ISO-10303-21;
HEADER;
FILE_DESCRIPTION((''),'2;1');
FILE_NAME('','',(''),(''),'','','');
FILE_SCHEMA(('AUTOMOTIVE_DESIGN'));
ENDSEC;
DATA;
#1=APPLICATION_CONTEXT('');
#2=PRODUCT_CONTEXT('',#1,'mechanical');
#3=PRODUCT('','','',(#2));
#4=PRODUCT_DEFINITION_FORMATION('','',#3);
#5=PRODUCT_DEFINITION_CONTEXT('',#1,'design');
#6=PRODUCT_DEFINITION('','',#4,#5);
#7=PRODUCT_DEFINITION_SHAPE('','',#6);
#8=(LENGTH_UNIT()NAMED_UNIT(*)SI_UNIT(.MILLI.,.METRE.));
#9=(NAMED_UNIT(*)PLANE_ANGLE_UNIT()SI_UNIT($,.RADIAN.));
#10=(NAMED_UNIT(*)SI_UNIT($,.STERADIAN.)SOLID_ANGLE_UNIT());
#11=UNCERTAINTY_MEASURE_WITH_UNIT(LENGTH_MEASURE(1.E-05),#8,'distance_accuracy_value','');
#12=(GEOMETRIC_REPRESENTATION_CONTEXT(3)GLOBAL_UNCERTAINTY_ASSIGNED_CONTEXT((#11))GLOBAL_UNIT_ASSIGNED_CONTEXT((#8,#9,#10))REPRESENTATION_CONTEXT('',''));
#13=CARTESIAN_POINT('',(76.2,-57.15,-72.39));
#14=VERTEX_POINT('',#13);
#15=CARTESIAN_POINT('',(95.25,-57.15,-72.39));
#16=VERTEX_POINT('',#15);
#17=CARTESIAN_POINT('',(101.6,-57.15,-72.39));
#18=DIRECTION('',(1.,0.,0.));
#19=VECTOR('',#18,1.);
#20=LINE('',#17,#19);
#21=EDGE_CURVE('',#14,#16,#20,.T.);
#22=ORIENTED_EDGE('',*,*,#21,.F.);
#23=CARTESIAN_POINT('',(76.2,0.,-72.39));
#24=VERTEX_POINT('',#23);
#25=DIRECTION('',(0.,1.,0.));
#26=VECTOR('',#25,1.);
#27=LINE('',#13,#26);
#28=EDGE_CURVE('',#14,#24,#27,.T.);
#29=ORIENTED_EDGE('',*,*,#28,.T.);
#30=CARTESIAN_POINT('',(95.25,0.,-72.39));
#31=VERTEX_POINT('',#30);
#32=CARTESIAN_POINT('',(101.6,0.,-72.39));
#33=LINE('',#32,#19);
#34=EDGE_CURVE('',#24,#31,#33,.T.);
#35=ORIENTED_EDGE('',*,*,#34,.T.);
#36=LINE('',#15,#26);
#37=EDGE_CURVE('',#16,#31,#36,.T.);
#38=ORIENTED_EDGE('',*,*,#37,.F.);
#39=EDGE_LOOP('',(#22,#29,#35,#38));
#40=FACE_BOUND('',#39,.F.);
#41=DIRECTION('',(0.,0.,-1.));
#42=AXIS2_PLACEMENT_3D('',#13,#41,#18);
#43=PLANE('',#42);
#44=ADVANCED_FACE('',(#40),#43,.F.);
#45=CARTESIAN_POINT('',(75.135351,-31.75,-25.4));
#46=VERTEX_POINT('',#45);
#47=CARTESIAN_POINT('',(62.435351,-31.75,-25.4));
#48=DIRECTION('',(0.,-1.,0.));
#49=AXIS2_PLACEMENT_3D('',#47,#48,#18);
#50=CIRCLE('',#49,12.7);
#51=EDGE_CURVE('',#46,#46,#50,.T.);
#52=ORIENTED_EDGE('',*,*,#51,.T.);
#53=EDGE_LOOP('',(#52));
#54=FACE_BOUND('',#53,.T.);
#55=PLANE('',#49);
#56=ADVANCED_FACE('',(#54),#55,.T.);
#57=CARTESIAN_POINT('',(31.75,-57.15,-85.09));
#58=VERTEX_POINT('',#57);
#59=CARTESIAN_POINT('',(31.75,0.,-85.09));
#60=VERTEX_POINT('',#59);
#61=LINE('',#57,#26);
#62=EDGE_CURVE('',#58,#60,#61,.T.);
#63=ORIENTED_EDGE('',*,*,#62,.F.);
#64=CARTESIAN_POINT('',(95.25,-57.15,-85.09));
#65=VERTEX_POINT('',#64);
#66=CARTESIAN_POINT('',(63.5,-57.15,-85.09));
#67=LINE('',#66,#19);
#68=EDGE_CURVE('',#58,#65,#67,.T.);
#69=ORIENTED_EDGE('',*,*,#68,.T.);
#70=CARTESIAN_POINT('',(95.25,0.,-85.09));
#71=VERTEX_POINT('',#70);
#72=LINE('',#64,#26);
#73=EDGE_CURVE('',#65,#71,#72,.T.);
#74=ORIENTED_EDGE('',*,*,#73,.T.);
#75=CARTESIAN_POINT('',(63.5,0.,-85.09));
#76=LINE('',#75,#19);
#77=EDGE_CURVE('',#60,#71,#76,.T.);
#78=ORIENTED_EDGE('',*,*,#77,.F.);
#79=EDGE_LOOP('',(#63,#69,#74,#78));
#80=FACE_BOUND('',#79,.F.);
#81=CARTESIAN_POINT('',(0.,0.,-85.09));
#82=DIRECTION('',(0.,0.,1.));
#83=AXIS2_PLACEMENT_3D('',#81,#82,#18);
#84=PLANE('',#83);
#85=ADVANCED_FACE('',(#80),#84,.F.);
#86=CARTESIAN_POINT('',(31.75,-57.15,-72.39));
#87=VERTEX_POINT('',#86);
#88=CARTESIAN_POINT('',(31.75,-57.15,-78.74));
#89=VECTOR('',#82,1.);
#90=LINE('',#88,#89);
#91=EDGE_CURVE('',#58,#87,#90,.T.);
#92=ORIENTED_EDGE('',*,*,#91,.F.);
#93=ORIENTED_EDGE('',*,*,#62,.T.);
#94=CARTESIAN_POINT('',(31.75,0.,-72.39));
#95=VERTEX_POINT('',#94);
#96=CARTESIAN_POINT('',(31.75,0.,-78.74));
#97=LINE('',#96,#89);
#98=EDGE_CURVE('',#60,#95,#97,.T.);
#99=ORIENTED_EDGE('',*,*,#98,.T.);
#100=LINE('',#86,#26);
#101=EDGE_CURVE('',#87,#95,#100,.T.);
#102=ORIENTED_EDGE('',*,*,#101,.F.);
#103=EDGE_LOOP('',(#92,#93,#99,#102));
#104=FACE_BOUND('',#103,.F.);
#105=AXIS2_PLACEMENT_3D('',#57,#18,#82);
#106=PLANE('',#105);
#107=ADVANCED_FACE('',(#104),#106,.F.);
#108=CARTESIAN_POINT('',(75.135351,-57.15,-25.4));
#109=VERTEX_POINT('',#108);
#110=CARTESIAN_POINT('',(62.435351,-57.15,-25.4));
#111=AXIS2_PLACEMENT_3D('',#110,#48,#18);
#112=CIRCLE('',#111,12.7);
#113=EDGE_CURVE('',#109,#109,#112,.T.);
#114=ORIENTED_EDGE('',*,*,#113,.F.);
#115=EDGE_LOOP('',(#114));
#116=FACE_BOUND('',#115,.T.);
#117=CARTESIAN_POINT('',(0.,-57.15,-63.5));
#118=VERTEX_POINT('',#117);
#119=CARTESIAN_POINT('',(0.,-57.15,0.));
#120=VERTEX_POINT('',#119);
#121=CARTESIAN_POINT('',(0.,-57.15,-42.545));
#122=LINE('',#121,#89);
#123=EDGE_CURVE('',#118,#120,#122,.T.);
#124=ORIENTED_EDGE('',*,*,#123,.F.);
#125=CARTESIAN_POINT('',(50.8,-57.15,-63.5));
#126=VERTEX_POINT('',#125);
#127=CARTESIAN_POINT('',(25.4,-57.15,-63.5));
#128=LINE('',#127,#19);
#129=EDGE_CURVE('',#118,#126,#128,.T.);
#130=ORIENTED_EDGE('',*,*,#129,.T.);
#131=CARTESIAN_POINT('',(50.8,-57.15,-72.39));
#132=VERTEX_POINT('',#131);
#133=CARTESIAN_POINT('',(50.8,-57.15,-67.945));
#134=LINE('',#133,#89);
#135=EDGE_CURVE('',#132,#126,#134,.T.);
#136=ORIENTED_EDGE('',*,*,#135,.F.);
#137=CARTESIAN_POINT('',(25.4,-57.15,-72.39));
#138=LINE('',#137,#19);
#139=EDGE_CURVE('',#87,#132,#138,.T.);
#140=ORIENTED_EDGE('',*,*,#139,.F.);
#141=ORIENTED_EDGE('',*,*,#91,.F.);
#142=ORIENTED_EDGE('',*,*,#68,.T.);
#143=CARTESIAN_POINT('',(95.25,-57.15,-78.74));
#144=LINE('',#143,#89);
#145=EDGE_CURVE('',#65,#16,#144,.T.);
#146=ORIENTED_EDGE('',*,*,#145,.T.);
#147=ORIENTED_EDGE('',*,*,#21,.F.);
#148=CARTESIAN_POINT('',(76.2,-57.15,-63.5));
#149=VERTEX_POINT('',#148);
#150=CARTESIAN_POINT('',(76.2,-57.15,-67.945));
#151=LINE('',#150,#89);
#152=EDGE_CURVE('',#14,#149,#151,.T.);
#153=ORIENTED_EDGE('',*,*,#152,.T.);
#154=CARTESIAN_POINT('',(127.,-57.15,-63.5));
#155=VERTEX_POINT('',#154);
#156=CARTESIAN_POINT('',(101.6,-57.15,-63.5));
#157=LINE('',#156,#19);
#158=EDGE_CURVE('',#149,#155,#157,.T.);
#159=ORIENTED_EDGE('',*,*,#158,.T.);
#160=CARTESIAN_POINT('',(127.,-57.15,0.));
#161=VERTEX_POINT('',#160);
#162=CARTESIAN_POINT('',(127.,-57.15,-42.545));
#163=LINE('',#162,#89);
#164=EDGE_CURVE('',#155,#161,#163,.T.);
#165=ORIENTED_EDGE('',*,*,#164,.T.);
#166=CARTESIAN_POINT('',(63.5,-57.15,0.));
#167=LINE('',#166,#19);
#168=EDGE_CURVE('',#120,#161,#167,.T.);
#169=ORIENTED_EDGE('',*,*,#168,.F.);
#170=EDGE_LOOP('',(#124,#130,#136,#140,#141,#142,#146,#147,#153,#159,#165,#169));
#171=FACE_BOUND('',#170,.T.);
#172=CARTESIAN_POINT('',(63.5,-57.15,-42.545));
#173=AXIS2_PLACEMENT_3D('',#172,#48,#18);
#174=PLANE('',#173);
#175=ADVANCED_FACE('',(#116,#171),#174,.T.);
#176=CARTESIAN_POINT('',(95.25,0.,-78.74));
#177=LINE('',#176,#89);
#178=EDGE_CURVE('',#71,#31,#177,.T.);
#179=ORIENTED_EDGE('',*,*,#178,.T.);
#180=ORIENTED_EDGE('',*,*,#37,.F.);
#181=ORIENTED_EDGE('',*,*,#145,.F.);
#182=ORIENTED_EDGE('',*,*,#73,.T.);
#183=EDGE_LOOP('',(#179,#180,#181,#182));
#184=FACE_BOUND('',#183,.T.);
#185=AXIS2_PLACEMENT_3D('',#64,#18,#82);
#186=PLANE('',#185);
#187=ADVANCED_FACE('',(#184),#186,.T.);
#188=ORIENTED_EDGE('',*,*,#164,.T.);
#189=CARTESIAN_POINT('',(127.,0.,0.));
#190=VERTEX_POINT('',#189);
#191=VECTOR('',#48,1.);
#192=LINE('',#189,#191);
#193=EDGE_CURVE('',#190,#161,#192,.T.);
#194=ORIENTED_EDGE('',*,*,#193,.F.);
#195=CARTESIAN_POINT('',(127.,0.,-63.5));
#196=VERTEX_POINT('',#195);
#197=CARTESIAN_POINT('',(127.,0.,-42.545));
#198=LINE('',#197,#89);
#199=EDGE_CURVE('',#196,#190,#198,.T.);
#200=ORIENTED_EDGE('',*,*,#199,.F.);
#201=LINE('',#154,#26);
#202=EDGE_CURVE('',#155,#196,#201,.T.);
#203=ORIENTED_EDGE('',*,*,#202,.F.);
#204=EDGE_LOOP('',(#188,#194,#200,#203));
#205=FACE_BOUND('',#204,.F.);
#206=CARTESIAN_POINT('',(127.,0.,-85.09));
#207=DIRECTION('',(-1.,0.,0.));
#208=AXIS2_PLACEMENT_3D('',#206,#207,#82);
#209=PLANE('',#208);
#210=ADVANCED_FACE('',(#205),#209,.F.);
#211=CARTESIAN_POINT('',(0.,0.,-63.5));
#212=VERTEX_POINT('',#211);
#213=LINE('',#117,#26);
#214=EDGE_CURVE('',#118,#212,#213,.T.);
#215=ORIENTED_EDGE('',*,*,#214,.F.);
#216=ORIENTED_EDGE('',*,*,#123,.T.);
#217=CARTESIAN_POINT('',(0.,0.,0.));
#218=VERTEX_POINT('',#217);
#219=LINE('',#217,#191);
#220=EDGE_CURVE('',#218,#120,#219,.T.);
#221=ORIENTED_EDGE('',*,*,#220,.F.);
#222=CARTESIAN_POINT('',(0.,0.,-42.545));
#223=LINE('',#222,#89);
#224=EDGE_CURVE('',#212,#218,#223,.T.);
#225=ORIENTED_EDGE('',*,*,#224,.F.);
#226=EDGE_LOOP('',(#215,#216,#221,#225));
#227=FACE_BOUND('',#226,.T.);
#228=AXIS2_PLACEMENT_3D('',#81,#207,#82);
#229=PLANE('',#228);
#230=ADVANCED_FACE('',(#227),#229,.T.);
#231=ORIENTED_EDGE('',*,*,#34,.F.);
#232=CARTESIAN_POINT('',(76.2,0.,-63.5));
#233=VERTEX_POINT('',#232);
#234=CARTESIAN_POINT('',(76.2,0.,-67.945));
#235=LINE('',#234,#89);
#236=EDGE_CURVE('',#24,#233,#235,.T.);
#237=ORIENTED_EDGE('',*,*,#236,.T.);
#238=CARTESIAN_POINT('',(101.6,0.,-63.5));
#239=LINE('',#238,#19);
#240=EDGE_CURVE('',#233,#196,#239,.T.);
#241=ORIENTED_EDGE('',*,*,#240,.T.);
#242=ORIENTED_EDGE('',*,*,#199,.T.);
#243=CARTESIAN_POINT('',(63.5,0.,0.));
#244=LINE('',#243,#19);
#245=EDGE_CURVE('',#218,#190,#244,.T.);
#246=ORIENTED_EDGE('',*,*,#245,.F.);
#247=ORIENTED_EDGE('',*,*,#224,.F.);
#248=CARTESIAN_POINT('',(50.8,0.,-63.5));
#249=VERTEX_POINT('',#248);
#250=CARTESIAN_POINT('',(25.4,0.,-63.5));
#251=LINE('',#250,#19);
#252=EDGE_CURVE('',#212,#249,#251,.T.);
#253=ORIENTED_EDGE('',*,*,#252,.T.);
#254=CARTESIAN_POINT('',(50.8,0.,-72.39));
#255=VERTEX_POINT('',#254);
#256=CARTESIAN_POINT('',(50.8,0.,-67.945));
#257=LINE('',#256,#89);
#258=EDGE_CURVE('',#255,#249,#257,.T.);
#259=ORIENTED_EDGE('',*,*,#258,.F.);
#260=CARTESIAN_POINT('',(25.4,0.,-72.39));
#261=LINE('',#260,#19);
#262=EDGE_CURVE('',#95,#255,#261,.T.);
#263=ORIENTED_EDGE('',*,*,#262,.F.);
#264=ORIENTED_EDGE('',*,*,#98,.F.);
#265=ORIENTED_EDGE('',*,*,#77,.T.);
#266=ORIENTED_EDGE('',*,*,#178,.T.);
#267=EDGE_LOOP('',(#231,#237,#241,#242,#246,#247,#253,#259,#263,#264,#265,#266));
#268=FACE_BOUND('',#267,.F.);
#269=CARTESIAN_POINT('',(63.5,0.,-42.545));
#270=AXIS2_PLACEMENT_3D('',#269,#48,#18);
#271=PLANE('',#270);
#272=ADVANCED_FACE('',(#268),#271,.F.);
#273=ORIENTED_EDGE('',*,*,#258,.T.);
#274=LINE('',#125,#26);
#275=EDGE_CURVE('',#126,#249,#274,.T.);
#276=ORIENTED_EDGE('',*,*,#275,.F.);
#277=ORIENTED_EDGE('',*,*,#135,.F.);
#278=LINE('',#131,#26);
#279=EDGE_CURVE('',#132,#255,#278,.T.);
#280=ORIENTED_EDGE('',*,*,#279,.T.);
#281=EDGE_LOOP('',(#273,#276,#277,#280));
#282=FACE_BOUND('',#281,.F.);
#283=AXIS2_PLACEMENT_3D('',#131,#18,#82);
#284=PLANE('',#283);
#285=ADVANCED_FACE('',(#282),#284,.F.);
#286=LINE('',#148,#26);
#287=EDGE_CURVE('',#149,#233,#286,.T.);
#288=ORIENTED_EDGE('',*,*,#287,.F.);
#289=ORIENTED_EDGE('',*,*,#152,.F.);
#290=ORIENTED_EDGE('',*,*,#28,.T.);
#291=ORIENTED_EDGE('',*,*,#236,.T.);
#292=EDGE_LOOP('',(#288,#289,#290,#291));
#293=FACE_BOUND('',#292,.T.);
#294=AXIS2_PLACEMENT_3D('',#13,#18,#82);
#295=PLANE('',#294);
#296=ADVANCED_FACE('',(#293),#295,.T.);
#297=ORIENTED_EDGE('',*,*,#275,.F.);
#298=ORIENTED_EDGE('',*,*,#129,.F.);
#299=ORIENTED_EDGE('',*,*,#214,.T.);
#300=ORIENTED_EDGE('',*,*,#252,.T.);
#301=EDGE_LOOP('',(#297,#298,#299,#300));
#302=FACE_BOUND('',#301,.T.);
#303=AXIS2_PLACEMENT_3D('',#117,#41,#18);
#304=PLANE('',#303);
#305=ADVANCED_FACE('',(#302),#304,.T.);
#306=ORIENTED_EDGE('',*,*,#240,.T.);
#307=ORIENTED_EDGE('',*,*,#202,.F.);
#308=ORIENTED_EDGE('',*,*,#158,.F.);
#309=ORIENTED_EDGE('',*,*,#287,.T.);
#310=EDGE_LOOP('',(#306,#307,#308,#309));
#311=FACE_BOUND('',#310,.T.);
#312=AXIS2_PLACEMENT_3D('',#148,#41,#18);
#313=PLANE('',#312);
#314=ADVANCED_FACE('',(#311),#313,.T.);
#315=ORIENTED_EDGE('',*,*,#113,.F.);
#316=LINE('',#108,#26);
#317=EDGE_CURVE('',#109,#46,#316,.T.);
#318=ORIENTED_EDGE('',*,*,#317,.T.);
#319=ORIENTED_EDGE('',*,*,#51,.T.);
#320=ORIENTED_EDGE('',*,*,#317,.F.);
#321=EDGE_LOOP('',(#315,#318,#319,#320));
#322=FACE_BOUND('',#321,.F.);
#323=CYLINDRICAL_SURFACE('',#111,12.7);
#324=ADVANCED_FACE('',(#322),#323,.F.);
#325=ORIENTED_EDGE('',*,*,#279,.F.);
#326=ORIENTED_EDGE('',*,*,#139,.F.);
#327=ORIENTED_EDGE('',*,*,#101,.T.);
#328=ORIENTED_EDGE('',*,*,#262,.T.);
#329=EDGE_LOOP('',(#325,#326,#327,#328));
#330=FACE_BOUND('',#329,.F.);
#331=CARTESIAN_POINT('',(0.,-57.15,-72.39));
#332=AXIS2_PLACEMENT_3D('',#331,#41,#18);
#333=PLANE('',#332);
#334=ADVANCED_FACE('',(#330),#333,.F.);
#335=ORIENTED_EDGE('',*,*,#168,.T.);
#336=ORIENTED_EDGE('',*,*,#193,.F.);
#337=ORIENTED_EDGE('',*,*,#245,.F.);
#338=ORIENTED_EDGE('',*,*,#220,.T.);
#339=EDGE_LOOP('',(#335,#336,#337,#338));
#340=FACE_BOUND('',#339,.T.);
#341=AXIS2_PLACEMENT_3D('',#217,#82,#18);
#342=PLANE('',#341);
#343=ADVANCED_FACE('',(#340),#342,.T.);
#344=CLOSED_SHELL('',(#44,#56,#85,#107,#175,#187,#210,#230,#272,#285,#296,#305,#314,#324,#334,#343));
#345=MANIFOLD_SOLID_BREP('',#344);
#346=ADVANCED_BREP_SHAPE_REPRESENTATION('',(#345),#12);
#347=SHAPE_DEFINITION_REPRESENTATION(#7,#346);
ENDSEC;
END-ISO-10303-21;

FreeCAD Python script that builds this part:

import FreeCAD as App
import Part
import Sketcher
Q = App.Units.Quantity

doc = App.newDocument("Part")
body = doc.addObject("PartDesign::Body", "Body")

# Sketch on XZ plane
sketch1 = doc.addObject("Sketcher::SketchObject", "Sketch")
body.addObject(sketch1)
sketch1.AttachmentSupport = (doc.XZ_Plane, [""])
sketch1.MapMode = "FlatFace"
sketch1.addGeometry(Part.LineSegment(App.Vector(0, 0, 0), App.Vector(0, -85.09, 0)), False)
sketch1.addGeometry(Part.LineSegment(App.Vector(0, -85.09, 0), App.Vector(127, -85.09, 0)), False)
sketch1.addGeometry(Part.LineSegment(App.Vector(127, -85.09, 0), App.Vector(127, 0, 0)), False)
sketch1.addGeometry(Part.LineSegment(App.Vector(127, 0, 0), App.Vector(0, 0, 0)), False)
sketch1.addConstraint(Sketcher.Constraint("Coincident", 0, 2, 1, 1))
sketch1.addConstraint(Sketcher.Constraint("Coincident", 1, 2, 2, 1))
sketch1.addConstraint(Sketcher.Constraint("Coincident", 2, 2, 3, 1))
sketch1.addConstraint(Sketcher.Constraint("Coincident", 3, 2, 0, 1))
sketch1.addConstraint(Sketcher.Constraint("Vertical", 0))
sketch1.addConstraint(Sketcher.Constraint("Horizontal", 1))
sketch1.addConstraint(Sketcher.Constraint("Vertical", 2))
sketch1.addConstraint(Sketcher.Constraint("Horizontal", 3))
sketch1.addConstraint(Sketcher.Constraint("Coincident", 3, 2, -1, 1))
sketch1.addConstraint(Sketcher.Constraint("DistanceX", 1, 1, 1, 2, Q("5 in")))
sketch1.addConstraint(Sketcher.Constraint("DistanceY", 0, 2, 0, 1, Q("3.35 in")))
pad1 = doc.addObject("PartDesign::Pad", "Pad")
body.addObject(pad1)
pad1.Profile = sketch1
pad1.Length = Q("2.25 in")

# Sketch on XZ plane
sketch2 = doc.addObject("Sketcher::SketchObject", "Sketch001")
body.addObject(sketch2)
sketch2.AttachmentSupport = (doc.XZ_Plane, [""])
sketch2.MapMode = "FlatFace"
sketch2.AttachmentOffset = App.Placement(App.Vector(0, 0, 2.25 * 25.4), App.Rotation())
sketch2.addGeometry(Part.LineSegment(App.Vector(95.25, -72.39, 0), App.Vector(95.25, -85.09, 0)), False)
sketch2.addGeometry(Part.LineSegment(App.Vector(95.25, -85.09, 0), App.Vector(127, -85.09, 0)), False)
sketch2.addGeometry(Part.LineSegment(App.Vector(127, -85.09, 0), App.Vector(127, -72.39, 0)), False)
sketch2.addGeometry(Part.LineSegment(App.Vector(127, -72.39, 0), App.Vector(95.25, -72.39, 0)), False)
sketch2.addConstraint(Sketcher.Constraint("Coincident", 0, 2, 1, 1))
sketch2.addConstraint(Sketcher.Constraint("Coincident", 1, 2, 2, 1))
sketch2.addConstraint(Sketcher.Constraint("Coincident", 2, 2, 3, 1))
sketch2.addConstraint(Sketcher.Constraint("Coincident", 3, 2, 0, 1))
sketch2.addConstraint(Sketcher.Constraint("Vertical", 0))
sketch2.addConstraint(Sketcher.Constraint("Horizontal", 1))
sketch2.addConstraint(Sketcher.Constraint("Vertical", 2))
sketch2.addConstraint(Sketcher.Constraint("Horizontal", 3))
sketch2.addConstraint(Sketcher.Constraint("DistanceY", 0, 2, 0, 1, Q("0.5 in")))
sketch2.addConstraint(Sketcher.Constraint("DistanceX", -1, 1, 1, 2, Q("5 in")))
sketch2.addConstraint(Sketcher.Constraint("DistanceX", 1, 1, 1, 2, Q("1.25 in")))
sketch2.addConstraint(Sketcher.Constraint("DistanceY", 0, 2, -1, 1, Q("3.35 in")))
pocket1 = doc.addObject("PartDesign::Pocket", "Pocket")
body.addObject(pocket1)
pocket1.Profile = sketch2
pocket1.Length = Q("2.25 in")

# Sketch on XZ plane
sketch3 = doc.addObject("Sketcher::SketchObject", "Sketch002")
body.addObject(sketch3)
sketch3.AttachmentSupport = (doc.XZ_Plane, [""])
sketch3.MapMode = "FlatFace"
sketch3.AttachmentOffset = App.Placement(App.Vector(0, 0, 2.25 * 25.4), App.Rotation())
sketch3.addGeometry(Part.LineSegment(App.Vector(76.2, -63.5, 0), App.Vector(76.2, -72.39, 0)), False)
sketch3.addGeometry(Part.LineSegment(App.Vector(76.2, -72.39, 0), App.Vector(127, -72.39, 0)), False)
sketch3.addGeometry(Part.LineSegment(App.Vector(127, -72.39, 0), App.Vector(127, -63.5, 0)), False)
sketch3.addGeometry(Part.LineSegment(App.Vector(127, -63.5, 0), App.Vector(76.2, -63.5, 0)), False)
sketch3.addConstraint(Sketcher.Constraint("Coincident", 0, 2, 1, 1))
sketch3.addConstraint(Sketcher.Constraint("Coincident", 1, 2, 2, 1))
sketch3.addConstraint(Sketcher.Constraint("Coincident", 2, 2, 3, 1))
sketch3.addConstraint(Sketcher.Constraint("Coincident", 3, 2, 0, 1))
sketch3.addConstraint(Sketcher.Constraint("Vertical", 0))
sketch3.addConstraint(Sketcher.Constraint("Horizontal", 1))
sketch3.addConstraint(Sketcher.Constraint("Vertical", 2))
sketch3.addConstraint(Sketcher.Constraint("Horizontal", 3))
sketch3.addConstraint(Sketcher.Constraint("DistanceX", 1, 1, 1, 2, Q("2 in")))
sketch3.addConstraint(Sketcher.Constraint("DistanceX", -1, 1, 0, 2, Q("3 in")))
sketch3.addConstraint(Sketcher.Constraint("DistanceY", 0, 2, 0, 1, Q("0.35 in")))
sketch3.addConstraint(Sketcher.Constraint("DistanceY", 2, 2, -1, 1, Q("2.5 in")))
pocket2 = doc.addObject("PartDesign::Pocket", "Pocket001")
body.addObject(pocket2)
pocket2.Profile = sketch3
pocket2.Length = Q("2.25 in")

# Sketch on XZ plane
sketch4 = doc.addObject("Sketcher::SketchObject", "Sketch003")
body.addObject(sketch4)
sketch4.AttachmentSupport = (doc.XZ_Plane, [""])
sketch4.MapMode = "FlatFace"
sketch4.AttachmentOffset = App.Placement(App.Vector(0, 0, 2.25 * 25.4), App.Rotation())
sketch4.addGeometry(Part.LineSegment(App.Vector(0, -72.39, 0), App.Vector(0, -85.09, 0)), False)
sketch4.addGeometry(Part.LineSegment(App.Vector(0, -85.09, 0), App.Vector(31.75, -85.09, 0)), False)
sketch4.addGeometry(Part.LineSegment(App.Vector(31.75, -85.09, 0), App.Vector(31.75, -72.39, 0)), False)
sketch4.addGeometry(Part.LineSegment(App.Vector(31.75, -72.39, 0), App.Vector(0, -72.39, 0)), False)
sketch4.addConstraint(Sketcher.Constraint("Coincident", 0, 2, 1, 1))
sketch4.addConstraint(Sketcher.Constraint("Coincident", 1, 2, 2, 1))
sketch4.addConstraint(Sketcher.Constraint("Coincident", 2, 2, 3, 1))
sketch4.addConstraint(Sketcher.Constraint("Coincident", 3, 2, 0, 1))
sketch4.addConstraint(Sketcher.Constraint("Vertical", 0))
sketch4.addConstraint(Sketcher.Constraint("Horizontal", 1))
sketch4.addConstraint(Sketcher.Constraint("Vertical", 2))
sketch4.addConstraint(Sketcher.Constraint("Horizontal", 3))
sketch4.addConstraint(Sketcher.Constraint("PointOnObject", 0, 2, -2))
sketch4.addConstraint(Sketcher.Constraint("DistanceY", 0, 2, 0, 1, Q("0.5 in")))
sketch4.addConstraint(Sketcher.Constraint("DistanceX", 1, 1, 1, 2, Q("1.25 in")))
sketch4.addConstraint(Sketcher.Constraint("DistanceY", 0, 2, -1, 1, Q("3.35 in")))
pocket3 = doc.addObject("PartDesign::Pocket", "Pocket002")
body.addObject(pocket3)
pocket3.Profile = sketch4
pocket3.Length = Q("2.25 in")

# Sketch on XZ plane
sketch5 = doc.addObject("Sketcher::SketchObject", "Sketch004")
body.addObject(sketch5)
sketch5.AttachmentSupport = (doc.XZ_Plane, [""])
sketch5.MapMode = "FlatFace"
sketch5.AttachmentOffset = App.Placement(App.Vector(0, 0, 2.25 * 25.4), App.Rotation())
sketch5.addGeometry(Part.LineSegment(App.Vector(0, -63.5, 0), App.Vector(0, -72.39, 0)), False)
sketch5.addGeometry(Part.LineSegment(App.Vector(0, -72.39, 0), App.Vector(50.8, -72.39, 0)), False)
sketch5.addGeometry(Part.LineSegment(App.Vector(50.8, -72.39, 0), App.Vector(50.8, -63.5, 0)), False)
sketch5.addGeometry(Part.LineSegment(App.Vector(50.8, -63.5, 0), App.Vector(0, -63.5, 0)), False)
sketch5.addConstraint(Sketcher.Constraint("Coincident", 0, 2, 1, 1))
sketch5.addConstraint(Sketcher.Constraint("Coincident", 1, 2, 2, 1))
sketch5.addConstraint(Sketcher.Constraint("Coincident", 2, 2, 3, 1))
sketch5.addConstraint(Sketcher.Constraint("Coincident", 3, 2, 0, 1))
sketch5.addConstraint(Sketcher.Constraint("Vertical", 0))
sketch5.addConstraint(Sketcher.Constraint("Horizontal", 1))
sketch5.addConstraint(Sketcher.Constraint("Vertical", 2))
sketch5.addConstraint(Sketcher.Constraint("Horizontal", 3))
sketch5.addConstraint(Sketcher.Constraint("PointOnObject", 0, 2, -2))
sketch5.addConstraint(Sketcher.Constraint("DistanceX", 1, 1, 1, 2, Q("2 in")))
sketch5.addConstraint(Sketcher.Constraint("DistanceY", 0, 2, 0, 1, Q("0.35 in")))
sketch5.addConstraint(Sketcher.Constraint("DistanceY", 2, 2, -1, 1, Q("2.5 in")))
pocket4 = doc.addObject("PartDesign::Pocket", "Pocket003")
body.addObject(pocket4)
pocket4.Profile = sketch5
pocket4.Length = Q("2.25 in")

# Sketch on XZ plane
sketch6 = doc.addObject("Sketcher::SketchObject", "Sketch005")
body.addObject(sketch6)
sketch6.AttachmentSupport = (doc.XZ_Plane, [""])
sketch6.MapMode = "FlatFace"
sketch6.AttachmentOffset = App.Placement(App.Vector(0, 0, 2.25 * 25.4), App.Rotation())
sketch6.addGeometry(Part.Circle(App.Vector(62.435351, -25.4, 0), App.Vector(0, 0, 1), 12.7), False)
sketch6.addConstraint(Sketcher.Constraint("Diameter", 0, Q("1 in")))
sketch6.addConstraint(Sketcher.Constraint("DistanceY", 0, 3, -1, 1, Q("1 in")))
sketch6.addConstraint(Sketcher.Constraint("DistanceX", -1, 1, 0, 3, Q("62.435351 mm")))
pocket5 = doc.addObject("PartDesign::Pocket", "Pocket004")
body.addObject(pocket5)
pocket5.Profile = sketch6
pocket5.Length = Q("1 in")

doc.recompute()
